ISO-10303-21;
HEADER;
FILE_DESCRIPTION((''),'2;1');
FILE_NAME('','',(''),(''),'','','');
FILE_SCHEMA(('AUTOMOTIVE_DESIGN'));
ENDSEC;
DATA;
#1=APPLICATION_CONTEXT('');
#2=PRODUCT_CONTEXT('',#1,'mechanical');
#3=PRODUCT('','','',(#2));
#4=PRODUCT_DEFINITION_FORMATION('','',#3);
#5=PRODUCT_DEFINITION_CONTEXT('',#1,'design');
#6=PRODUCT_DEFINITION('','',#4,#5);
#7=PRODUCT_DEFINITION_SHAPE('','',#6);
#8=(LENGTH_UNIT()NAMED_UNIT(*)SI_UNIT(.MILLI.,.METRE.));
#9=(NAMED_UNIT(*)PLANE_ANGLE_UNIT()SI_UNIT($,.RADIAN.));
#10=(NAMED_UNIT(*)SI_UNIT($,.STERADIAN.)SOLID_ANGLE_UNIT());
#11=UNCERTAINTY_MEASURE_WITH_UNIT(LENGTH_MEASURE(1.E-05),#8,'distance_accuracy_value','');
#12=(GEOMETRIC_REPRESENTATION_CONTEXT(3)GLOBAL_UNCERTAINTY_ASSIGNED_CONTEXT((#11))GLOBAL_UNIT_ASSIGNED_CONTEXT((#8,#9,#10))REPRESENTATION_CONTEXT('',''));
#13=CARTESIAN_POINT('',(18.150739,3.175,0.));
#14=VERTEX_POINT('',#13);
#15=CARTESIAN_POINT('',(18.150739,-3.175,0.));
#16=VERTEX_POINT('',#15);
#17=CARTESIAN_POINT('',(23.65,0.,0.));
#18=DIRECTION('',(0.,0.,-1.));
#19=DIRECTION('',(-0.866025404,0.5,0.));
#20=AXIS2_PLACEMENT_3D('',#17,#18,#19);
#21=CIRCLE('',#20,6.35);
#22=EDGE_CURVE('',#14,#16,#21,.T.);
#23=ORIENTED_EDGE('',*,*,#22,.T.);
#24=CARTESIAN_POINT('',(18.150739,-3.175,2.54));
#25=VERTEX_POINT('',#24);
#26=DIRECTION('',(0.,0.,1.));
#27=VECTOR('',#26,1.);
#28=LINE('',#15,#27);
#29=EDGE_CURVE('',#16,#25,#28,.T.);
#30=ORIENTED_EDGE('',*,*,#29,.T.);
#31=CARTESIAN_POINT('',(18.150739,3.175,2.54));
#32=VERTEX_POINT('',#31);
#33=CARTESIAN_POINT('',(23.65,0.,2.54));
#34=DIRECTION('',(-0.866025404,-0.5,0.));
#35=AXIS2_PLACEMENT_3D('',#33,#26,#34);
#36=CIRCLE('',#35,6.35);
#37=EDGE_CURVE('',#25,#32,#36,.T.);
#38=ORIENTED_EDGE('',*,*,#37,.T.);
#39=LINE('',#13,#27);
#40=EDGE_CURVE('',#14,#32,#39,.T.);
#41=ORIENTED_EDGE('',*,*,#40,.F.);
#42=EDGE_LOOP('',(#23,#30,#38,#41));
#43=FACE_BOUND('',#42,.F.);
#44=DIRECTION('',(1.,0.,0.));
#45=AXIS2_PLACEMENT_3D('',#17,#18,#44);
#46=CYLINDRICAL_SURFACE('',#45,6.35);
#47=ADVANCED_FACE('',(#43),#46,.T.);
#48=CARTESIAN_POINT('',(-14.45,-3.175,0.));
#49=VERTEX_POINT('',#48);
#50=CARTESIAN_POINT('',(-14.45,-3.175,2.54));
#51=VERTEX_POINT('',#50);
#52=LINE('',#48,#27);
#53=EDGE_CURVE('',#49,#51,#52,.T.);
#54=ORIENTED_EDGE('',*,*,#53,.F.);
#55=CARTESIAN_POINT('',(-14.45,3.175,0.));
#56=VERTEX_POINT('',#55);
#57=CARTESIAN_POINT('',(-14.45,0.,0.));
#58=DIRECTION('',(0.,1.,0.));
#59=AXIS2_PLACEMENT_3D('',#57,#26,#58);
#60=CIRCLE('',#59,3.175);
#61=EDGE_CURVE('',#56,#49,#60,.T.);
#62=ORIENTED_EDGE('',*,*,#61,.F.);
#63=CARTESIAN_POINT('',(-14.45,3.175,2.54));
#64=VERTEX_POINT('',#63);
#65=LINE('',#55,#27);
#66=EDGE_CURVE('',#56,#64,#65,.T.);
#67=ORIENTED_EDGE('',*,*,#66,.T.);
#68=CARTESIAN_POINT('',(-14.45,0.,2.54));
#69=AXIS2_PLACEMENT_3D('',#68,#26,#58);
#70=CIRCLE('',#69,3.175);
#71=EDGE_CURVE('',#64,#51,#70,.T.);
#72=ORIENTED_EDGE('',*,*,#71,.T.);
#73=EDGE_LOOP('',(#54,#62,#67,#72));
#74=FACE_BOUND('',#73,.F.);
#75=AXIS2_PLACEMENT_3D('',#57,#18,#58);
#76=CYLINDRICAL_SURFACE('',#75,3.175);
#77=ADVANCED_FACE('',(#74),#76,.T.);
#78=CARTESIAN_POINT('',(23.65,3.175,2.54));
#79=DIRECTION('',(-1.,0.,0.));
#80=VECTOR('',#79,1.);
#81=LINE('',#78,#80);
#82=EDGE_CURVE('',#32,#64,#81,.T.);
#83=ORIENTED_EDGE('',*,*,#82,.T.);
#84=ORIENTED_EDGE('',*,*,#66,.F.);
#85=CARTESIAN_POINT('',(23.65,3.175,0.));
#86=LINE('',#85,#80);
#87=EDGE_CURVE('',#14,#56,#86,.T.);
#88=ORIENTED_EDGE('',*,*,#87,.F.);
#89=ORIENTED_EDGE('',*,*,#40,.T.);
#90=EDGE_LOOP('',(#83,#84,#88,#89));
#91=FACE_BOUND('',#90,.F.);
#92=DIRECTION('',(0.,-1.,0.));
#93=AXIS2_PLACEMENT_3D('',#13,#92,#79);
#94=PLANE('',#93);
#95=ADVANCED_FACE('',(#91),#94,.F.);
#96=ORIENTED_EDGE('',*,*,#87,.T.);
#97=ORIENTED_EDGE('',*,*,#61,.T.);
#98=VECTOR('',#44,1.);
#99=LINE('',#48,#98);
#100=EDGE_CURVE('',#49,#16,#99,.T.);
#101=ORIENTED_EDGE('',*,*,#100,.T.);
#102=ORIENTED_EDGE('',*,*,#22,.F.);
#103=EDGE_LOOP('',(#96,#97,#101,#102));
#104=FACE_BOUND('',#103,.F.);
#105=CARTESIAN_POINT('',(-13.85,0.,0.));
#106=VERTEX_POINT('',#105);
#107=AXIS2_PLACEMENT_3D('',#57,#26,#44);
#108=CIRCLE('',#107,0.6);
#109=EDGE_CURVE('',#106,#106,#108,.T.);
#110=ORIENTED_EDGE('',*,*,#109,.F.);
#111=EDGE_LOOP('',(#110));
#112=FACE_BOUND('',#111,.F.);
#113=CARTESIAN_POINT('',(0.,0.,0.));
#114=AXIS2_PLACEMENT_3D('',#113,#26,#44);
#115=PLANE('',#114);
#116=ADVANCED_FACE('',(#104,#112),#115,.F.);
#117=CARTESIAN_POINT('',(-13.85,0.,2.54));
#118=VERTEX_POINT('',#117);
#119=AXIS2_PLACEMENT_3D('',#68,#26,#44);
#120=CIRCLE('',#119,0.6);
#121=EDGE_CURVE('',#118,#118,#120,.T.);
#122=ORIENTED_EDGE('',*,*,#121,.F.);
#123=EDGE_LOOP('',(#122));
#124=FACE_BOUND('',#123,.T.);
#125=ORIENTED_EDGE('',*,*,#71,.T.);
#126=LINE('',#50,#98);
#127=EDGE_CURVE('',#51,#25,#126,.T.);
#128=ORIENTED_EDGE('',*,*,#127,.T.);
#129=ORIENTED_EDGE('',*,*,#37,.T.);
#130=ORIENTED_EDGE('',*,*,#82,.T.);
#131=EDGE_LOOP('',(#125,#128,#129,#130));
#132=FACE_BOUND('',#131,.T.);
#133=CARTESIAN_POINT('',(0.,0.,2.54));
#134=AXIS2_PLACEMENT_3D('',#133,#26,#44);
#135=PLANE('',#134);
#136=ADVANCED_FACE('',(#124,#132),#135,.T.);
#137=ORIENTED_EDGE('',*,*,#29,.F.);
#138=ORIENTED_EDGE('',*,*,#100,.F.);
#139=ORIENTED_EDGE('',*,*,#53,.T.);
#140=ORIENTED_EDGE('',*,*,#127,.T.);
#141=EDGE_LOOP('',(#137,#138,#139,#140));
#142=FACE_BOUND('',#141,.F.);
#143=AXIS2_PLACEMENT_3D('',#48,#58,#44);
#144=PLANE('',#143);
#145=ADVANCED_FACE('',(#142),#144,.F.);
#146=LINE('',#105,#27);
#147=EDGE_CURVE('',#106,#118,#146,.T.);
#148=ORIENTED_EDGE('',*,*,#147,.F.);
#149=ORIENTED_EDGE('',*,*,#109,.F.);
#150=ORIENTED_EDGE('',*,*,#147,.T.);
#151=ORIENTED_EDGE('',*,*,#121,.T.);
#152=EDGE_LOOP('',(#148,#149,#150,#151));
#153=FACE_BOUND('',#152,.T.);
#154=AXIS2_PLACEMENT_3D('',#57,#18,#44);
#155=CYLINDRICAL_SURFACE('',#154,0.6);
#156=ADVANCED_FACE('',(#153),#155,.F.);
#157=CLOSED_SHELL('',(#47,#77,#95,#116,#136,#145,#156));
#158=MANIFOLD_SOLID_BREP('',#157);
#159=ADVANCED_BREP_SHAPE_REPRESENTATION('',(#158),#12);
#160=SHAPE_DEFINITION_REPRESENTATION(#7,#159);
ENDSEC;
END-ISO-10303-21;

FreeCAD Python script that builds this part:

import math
import FreeCAD as App
import Part
import Sketcher
from FreeCAD import Vector
Q = App.Units.Quantity

doc = App.newDocument("Part")
body = doc.addObject("PartDesign::Body", "Body")

sketch1 = body.newObject("Sketcher::SketchObject", "Sketch")
sketch1.AttachmentSupport = (doc.getObject("XY_Plane"), [""])
sketch1.MapMode = "FlatFace"
sketch1.addGeometry(Part.ArcOfCircle(Part.Circle(Vector(-14.4, 0, 0), Vector(0, 0, 1), 3.2), math.radians(90), math.radians(270)), False)
sketch1.addGeometry(Part.LineSegment(Vector(-14.4, -3.2, 0), Vector(18.2, -3.2, 0)), False)
sketch1.addGeometry(Part.ArcOfCircle(Part.Circle(Vector(23.6, 0, 0), Vector(0, 0, 1), 6.3), math.radians(-150), math.radians(150)), False)
sketch1.addGeometry(Part.LineSegment(Vector(18.2, 3.2, 0), Vector(-14.4, 3.2, 0)), False)
sketch1.addGeometry(Part.Circle(Vector(-14.4, 0, 0), Vector(0, 0, 1), 0.6), False)
sketch1.addConstraint(Sketcher.Constraint("Tangent", 0, 2, 1, 1))
sketch1.addConstraint(Sketcher.Constraint("Coincident", 1, 2, 2, 1))
sketch1.addConstraint(Sketcher.Constraint("Coincident", 2, 2, 3, 1))
sketch1.addConstraint(Sketcher.Constraint("Tangent", 3, 2, 0, 1))
sketch1.addConstraint(Sketcher.Constraint("Horizontal", 1))
sketch1.addConstraint(Sketcher.Constraint("Horizontal", 3))
sketch1.addConstraint(Sketcher.Constraint("Coincident", 4, 3, 0, 3))
sketch1.addConstraint(Sketcher.Constraint("Symmetric", 1, 2, 2, 2, -1))
sketch1.addConstraint(Sketcher.Constraint("Radius", 2, Q("0.25 in")))
sketch1.addConstraint(Sketcher.Constraint("Radius", 0, Q("0.125 in")))
sketch1.addConstraint(Sketcher.Constraint("DistanceX", 0, 3, 2, 3, Q("1.5 in")))
sketch1.addConstraint(Sketcher.Constraint("Diameter", 4, 1.2))
sketch1.addConstraint(Sketcher.Constraint("DistanceX", 0, 3, -1, 1, Q("0.5689 in")))
pad1 = body.newObject("PartDesign::Pad", "Pad")
pad1.Profile = sketch1
pad1.Length = Q("0.1 in")

doc.recompute()
